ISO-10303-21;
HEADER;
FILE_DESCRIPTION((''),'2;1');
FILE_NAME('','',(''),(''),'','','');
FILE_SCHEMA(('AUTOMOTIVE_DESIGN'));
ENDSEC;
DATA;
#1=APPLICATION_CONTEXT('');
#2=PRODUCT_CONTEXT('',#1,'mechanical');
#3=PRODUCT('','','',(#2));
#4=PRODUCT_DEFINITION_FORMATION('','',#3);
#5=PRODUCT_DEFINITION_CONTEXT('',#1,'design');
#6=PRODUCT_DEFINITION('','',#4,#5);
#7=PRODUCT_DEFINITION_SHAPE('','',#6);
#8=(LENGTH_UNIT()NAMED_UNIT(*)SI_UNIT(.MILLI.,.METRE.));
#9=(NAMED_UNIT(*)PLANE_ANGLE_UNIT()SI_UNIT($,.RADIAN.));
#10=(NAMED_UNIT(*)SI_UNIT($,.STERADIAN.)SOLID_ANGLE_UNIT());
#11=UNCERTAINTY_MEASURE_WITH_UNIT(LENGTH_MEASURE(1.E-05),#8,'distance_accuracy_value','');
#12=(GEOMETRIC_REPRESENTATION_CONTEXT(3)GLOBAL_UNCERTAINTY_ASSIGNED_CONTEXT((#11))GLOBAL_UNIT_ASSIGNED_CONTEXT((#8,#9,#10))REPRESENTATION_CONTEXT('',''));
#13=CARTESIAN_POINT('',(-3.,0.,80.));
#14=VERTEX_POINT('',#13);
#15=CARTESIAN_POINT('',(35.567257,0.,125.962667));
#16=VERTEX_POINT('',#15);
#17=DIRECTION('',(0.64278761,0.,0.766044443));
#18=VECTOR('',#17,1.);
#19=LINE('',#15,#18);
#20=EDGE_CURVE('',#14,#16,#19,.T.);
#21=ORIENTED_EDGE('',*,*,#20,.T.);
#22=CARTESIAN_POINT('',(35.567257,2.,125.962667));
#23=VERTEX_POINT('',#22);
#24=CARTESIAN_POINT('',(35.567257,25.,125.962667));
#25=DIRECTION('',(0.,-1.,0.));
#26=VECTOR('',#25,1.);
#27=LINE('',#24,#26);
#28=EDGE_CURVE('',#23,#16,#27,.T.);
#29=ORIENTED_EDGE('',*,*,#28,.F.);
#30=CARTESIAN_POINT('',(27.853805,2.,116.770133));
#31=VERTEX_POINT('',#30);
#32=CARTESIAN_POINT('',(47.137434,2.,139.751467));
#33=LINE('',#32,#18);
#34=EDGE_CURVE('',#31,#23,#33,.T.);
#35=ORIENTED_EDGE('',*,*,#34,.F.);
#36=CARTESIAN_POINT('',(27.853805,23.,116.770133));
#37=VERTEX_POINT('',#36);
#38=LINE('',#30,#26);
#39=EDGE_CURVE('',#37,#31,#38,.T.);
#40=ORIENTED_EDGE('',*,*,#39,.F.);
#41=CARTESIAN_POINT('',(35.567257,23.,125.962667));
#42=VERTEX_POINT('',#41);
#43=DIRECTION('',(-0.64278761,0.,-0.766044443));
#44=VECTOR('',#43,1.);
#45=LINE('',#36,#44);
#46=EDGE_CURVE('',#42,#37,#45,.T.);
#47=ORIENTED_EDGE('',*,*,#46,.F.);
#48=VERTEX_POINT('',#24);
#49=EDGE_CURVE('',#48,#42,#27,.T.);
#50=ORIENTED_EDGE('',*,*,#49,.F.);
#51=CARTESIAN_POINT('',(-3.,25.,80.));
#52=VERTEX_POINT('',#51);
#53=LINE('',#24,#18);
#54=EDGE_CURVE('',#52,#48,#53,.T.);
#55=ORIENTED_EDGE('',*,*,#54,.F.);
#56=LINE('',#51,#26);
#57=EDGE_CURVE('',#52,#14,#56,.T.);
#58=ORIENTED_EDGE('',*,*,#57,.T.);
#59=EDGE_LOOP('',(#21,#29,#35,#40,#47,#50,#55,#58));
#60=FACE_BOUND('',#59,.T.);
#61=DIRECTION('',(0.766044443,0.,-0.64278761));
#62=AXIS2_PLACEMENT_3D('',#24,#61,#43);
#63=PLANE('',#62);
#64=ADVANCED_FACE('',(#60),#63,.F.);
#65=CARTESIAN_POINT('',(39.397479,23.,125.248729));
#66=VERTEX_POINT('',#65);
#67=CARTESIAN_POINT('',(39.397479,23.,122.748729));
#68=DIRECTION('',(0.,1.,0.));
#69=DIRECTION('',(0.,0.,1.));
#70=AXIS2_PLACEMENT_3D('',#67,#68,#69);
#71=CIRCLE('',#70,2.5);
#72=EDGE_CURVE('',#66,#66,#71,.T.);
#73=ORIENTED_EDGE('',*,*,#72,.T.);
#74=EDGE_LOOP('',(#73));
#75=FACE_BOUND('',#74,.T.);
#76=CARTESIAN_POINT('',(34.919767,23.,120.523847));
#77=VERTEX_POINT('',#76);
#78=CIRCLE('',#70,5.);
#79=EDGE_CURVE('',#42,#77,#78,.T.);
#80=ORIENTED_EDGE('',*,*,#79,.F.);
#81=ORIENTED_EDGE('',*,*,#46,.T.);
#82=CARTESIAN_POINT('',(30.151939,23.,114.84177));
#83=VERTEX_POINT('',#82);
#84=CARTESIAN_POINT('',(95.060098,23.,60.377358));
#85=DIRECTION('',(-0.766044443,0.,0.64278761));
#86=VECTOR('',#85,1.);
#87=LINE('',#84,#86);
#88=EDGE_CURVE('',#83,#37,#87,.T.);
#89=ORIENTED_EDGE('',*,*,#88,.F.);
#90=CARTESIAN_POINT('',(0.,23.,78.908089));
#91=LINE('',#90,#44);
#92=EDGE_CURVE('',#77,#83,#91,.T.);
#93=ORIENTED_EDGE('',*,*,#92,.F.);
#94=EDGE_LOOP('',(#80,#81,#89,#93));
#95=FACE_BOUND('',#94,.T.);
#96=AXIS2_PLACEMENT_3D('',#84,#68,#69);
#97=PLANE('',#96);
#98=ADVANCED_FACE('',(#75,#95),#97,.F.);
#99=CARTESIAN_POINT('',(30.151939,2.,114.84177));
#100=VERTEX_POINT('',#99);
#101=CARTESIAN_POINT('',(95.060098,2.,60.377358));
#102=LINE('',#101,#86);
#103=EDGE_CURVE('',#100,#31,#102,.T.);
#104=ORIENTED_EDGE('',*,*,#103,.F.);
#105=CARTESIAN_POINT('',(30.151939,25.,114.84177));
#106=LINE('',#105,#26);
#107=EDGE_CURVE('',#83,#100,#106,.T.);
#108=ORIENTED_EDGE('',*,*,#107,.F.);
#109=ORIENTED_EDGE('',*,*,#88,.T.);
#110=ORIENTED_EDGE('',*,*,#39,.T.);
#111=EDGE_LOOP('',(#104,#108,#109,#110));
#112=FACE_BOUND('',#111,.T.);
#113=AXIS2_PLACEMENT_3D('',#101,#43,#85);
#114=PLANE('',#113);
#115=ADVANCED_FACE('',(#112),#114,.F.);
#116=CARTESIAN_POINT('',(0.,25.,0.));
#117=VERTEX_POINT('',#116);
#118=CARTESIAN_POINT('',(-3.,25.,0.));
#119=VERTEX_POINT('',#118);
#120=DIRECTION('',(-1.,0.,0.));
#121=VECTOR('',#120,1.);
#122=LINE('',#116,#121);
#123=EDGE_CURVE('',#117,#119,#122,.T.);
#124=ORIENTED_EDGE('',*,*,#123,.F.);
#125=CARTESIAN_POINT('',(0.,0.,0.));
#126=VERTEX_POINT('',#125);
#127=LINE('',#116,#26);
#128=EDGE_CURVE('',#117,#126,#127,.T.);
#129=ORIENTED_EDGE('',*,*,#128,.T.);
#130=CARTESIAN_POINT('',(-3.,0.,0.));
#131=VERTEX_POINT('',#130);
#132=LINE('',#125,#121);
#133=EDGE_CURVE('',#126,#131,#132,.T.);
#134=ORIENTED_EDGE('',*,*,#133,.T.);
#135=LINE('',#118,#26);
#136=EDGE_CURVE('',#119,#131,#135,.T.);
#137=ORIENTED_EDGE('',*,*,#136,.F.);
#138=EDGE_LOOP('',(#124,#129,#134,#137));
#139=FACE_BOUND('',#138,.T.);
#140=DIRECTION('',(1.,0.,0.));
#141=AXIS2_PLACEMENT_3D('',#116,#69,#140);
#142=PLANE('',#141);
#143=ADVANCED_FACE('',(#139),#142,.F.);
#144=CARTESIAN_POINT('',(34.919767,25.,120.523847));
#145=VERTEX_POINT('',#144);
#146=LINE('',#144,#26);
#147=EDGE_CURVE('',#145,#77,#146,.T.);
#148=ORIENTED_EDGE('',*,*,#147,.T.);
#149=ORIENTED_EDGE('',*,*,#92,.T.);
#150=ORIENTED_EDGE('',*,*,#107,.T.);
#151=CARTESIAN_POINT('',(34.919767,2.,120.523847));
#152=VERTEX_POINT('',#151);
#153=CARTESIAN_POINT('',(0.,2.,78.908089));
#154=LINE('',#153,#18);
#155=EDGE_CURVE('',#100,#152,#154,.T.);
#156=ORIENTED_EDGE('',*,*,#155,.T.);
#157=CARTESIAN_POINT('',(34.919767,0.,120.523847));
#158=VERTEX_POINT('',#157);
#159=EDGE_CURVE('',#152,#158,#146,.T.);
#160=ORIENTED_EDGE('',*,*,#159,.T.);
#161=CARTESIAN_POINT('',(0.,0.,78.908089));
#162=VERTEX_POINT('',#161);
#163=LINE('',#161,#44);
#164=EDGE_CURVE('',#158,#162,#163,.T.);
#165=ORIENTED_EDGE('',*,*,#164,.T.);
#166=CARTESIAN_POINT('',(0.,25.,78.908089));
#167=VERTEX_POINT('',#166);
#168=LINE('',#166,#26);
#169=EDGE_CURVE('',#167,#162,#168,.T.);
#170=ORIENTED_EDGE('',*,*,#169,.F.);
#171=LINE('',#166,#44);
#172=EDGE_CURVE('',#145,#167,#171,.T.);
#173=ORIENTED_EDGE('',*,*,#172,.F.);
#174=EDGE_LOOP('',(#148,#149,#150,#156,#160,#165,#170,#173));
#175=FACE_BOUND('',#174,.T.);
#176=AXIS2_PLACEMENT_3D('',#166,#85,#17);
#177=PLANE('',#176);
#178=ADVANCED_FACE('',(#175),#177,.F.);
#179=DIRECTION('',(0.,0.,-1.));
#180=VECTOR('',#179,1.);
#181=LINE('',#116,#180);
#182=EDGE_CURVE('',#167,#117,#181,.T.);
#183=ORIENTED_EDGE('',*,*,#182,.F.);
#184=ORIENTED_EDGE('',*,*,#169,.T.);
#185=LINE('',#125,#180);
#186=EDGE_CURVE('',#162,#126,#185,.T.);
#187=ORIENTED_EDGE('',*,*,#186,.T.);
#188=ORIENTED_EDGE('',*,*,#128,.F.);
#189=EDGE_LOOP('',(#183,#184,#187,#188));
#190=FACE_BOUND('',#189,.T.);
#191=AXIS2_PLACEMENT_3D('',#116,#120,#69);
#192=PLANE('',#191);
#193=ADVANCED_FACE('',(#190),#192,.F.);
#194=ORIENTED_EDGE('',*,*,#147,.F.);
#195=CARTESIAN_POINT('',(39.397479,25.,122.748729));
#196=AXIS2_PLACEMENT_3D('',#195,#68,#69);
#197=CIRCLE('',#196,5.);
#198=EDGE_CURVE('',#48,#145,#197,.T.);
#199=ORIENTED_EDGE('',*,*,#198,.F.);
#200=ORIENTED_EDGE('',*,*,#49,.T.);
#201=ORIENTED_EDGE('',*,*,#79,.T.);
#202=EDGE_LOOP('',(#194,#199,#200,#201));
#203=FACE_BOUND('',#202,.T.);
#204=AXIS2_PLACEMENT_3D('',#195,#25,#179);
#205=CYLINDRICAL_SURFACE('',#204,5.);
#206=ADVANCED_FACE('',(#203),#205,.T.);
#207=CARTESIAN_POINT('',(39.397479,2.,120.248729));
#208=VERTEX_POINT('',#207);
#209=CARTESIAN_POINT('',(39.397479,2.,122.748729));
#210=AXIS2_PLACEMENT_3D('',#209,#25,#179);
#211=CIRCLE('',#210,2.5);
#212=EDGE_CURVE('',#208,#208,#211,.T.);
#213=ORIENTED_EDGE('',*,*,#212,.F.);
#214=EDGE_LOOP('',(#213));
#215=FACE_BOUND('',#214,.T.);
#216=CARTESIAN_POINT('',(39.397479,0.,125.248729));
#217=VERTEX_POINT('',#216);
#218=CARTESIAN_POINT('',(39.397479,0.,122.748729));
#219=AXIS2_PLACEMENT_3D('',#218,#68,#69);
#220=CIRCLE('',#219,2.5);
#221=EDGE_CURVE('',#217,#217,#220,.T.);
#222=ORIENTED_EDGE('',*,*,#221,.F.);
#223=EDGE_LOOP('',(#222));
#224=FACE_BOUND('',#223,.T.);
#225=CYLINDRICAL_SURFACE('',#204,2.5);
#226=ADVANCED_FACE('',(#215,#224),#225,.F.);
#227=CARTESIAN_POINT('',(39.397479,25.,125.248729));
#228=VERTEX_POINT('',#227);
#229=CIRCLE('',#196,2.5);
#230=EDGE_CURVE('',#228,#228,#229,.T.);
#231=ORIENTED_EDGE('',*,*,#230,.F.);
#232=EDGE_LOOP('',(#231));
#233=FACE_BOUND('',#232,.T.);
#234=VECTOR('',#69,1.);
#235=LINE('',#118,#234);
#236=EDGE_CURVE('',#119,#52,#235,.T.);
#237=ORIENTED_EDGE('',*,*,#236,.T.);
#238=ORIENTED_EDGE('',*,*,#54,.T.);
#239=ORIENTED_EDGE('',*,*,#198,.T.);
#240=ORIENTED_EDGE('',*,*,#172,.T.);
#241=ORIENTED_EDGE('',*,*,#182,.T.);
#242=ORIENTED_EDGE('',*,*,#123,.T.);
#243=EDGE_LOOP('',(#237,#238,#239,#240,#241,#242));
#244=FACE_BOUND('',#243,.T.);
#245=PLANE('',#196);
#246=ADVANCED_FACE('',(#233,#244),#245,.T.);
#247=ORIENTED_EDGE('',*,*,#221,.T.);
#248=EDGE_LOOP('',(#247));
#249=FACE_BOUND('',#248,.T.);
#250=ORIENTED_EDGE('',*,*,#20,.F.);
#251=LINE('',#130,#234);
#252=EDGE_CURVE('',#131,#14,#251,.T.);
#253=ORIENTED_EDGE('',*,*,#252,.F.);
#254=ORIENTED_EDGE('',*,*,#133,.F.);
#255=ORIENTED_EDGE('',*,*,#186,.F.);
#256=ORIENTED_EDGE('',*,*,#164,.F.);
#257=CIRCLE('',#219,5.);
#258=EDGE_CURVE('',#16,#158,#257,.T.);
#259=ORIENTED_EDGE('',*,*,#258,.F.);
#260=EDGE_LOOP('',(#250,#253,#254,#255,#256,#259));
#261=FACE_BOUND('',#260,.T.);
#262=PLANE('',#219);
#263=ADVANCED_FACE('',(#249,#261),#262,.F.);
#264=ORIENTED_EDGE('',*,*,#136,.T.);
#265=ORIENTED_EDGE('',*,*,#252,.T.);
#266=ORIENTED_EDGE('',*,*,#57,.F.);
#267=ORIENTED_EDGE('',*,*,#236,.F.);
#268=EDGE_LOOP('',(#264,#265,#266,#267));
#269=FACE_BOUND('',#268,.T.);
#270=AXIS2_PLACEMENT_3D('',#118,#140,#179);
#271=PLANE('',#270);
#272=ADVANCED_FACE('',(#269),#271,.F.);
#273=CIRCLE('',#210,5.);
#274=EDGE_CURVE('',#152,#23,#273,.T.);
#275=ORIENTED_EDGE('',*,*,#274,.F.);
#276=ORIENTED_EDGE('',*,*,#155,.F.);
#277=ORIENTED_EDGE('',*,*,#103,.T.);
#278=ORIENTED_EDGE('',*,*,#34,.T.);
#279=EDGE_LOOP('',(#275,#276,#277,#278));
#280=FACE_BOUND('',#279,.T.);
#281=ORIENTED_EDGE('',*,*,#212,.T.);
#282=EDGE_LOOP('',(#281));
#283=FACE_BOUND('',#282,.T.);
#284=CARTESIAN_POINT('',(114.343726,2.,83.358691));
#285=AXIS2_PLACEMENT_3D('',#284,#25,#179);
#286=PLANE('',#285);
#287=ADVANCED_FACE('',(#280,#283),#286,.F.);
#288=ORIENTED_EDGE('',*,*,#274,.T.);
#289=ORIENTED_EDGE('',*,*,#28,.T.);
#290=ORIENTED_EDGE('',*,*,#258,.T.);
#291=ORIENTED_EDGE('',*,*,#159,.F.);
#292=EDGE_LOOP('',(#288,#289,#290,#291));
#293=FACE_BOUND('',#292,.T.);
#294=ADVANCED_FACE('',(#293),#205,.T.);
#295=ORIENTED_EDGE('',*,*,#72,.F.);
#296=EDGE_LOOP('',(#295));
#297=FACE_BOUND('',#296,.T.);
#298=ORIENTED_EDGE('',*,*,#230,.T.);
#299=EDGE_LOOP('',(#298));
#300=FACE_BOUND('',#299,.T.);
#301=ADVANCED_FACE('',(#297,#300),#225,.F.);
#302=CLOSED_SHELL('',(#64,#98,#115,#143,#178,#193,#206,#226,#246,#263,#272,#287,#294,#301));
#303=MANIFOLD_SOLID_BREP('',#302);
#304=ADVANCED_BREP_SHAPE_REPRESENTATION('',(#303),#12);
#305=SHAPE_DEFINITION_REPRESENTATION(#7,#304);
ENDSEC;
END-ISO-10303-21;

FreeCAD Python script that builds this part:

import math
import FreeCAD as App
import Part
import Sketcher
Q = App.Units.Quantity

doc = App.newDocument("Part")
body = doc.addObject("PartDesign::Body", "Body")

# Sketch on XZ plane
sketch1 = body.newObject("Sketcher::SketchObject", "Sketch")
sketch1.AttachmentSupport = (doc.getObject("XZ_Plane"), [""])
sketch1.MapMode = "FlatFace"
sketch1.addGeometry(Part.LineSegment(App.Vector(0, 0, 0), App.Vector(-3, 0, 0)), False)
sketch1.addGeometry(Part.LineSegment(App.Vector(-3, 0, 0), App.Vector(-3, 80, 0)), False)
sketch1.addGeometry(Part.LineSegment(App.Vector(-3, 80, 0), App.Vector(35.567257, 125.962667, 0)), False)
sketch1.addGeometry(Part.ArcOfCircle(Part.Circle(App.Vector(39.397479, 122.748729, 0), App.Vector(0, 0, 1), 5), math.radians(-153.578178), math.radians(140)), False)
sketch1.addGeometry(Part.LineSegment(App.Vector(34.919767, 120.523847, 0), App.Vector(0, 78.908089, 0)), False)
sketch1.addGeometry(Part.LineSegment(App.Vector(0, 78.908089, 0), App.Vector(0, 0, 0)), False)
sketch1.addGeometry(Part.Circle(App.Vector(39.397479, 122.748729, 0), App.Vector(0, 0, 1), 2.5), False)
sketch1.addConstraint(Sketcher.Constraint("Coincident", 0, 2, 1, 1))
sketch1.addConstraint(Sketcher.Constraint("Coincident", 1, 2, 2, 1))
sketch1.addConstraint(Sketcher.Constraint("Tangent", 2, 2, 3, 2))
sketch1.addConstraint(Sketcher.Constraint("Coincident", 3, 1, 4, 1))
sketch1.addConstraint(Sketcher.Constraint("Coincident", 4, 2, 5, 1))
sketch1.addConstraint(Sketcher.Constraint("Coincident", 5, 2, 0, 1))
sketch1.addConstraint(Sketcher.Constraint("Horizontal", 0))
sketch1.addConstraint(Sketcher.Constraint("Vertical", 1))
sketch1.addConstraint(Sketcher.Constraint("Vertical", 5))
sketch1.addConstraint(Sketcher.Constraint("Coincident", 5, 2, -1, 1))
sketch1.addConstraint(Sketcher.Constraint("Coincident", 6, 3, 3, 3))
sketch1.addConstraint(Sketcher.Constraint("Parallel", 2, 4))
sketch1.addConstraint(Sketcher.Constraint("Diameter", 6, 5.0))
sketch1.addConstraint(Sketcher.Constraint("Radius", 3, 5.0))
sketch1.addConstraint(Sketcher.Constraint("DistanceX", 0, 2, 0, 1, 3.0))
sketch1.addConstraint(Sketcher.Constraint("DistanceY", 1, 1, 1, 2, 80.0))
sketch1.addConstraint(Sketcher.Constraint("Angle", 2, Q("50 deg")))
sketch1.addConstraint(Sketcher.Constraint("Distance", 2, 60.0))
sketch1.addConstraint(Sketcher.Constraint("DistanceY", 5, 2, 5, 1, 78.908089))
pad1 = body.newObject("PartDesign::Pad", "Pad")
pad1.Profile = sketch1
pad1.Length = 25
pad1.Reversed = True

# Sketch on an angled plane
sketch2 = body.newObject("Sketcher::SketchObject", "Sketch001")
sketch2.Placement = App.Placement(App.Vector(-41.152782, 0, 34.531285), App.Rotation(App.Vector(0.64278761, 0, 0.766044443), App.Vector(0, 1, 0), App.Vector(-0.766044443, 0, 0.64278761), "ZXY"))
sketch2.addGeometry(Part.LineSegment(App.Vector(107.355193, 23, 0), App.Vector(107.355193, 2, 0)), False)
sketch2.addGeometry(Part.LineSegment(App.Vector(107.355193, 2, 0), App.Vector(137.355193, 2, 0)), False)
sketch2.addGeometry(Part.LineSegment(App.Vector(137.355193, 2, 0), App.Vector(137.355193, 23, 0)), False)
sketch2.addGeometry(Part.LineSegment(App.Vector(137.355193, 23, 0), App.Vector(107.355193, 23, 0)), False)
sketch2.addConstraint(Sketcher.Constraint("Coincident", 0, 2, 1, 1))
sketch2.addConstraint(Sketcher.Constraint("Coincident", 1, 2, 2, 1))
sketch2.addConstraint(Sketcher.Constraint("Coincident", 2, 2, 3, 1))
sketch2.addConstraint(Sketcher.Constraint("Coincident", 3, 2, 0, 1))
sketch2.addConstraint(Sketcher.Constraint("Vertical", 0))
sketch2.addConstraint(Sketcher.Constraint("Horizontal", 1))
sketch2.addConstraint(Sketcher.Constraint("Vertical", 2))
sketch2.addConstraint(Sketcher.Constraint("Horizontal", 3))
sketch2.addConstraint(Sketcher.Constraint("DistanceX", 1, 1, 1, 2, 30.0))
sketch2.addConstraint(Sketcher.Constraint("DistanceY", 0, 2, 0, 1, 21.0))
sketch2.addConstraint(Sketcher.Constraint("DistanceY", -1, 1, 0, 2, 2.0))
sketch2.addConstraint(Sketcher.Constraint("DistanceX", -1, 1, 0, 2, 107.355193))
pocket1 = body.newObject("PartDesign::Pocket", "Pocket")
pocket1.Profile = sketch2
pocket1.Type = "ThroughAll"

doc.recompute()
